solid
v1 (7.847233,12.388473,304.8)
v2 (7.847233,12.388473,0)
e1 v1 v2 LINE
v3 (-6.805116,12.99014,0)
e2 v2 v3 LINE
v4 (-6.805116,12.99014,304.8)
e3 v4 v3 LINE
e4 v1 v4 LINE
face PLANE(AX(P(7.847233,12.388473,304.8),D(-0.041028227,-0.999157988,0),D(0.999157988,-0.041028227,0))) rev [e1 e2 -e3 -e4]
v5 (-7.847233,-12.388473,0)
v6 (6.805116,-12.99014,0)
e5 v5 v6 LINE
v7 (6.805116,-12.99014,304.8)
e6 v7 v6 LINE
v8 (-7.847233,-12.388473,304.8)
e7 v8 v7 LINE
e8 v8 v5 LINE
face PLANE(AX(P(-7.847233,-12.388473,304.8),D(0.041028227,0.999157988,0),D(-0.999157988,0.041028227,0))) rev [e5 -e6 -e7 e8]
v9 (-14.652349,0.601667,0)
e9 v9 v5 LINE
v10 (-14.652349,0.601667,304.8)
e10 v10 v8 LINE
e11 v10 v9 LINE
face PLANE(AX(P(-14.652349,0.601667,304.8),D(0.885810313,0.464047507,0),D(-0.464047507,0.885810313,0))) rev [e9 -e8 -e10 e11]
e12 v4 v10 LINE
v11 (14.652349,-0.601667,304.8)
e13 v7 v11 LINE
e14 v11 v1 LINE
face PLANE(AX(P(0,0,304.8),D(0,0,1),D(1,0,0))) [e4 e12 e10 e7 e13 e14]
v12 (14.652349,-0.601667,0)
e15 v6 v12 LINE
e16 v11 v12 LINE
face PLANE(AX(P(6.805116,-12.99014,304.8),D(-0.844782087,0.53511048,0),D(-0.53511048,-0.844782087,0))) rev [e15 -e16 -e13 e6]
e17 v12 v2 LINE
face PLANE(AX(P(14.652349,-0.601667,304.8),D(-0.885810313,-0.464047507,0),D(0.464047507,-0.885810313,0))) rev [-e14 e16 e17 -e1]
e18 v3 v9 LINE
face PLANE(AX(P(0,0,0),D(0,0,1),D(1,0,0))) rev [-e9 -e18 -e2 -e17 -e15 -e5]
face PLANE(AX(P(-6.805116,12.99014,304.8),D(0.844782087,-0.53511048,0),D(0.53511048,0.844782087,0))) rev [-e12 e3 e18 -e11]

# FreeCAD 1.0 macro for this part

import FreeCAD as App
import Part
import Sketcher
Q = App.Units.Quantity


def add_polygon(sketch, points):
    """Adds a closed chain of lines whose ends are joined by coincident constraints."""
    first, n = sketch.GeometryCount, len(points)
    for a, b in zip(points, points[1:] + points[:1]):
        sketch.addGeometry(Part.LineSegment(App.Vector(*a, 0), App.Vector(*b, 0)), False)
    for i in range(n):
        sketch.addConstraint(Sketcher.Constraint("Coincident", first + i, 2, first + (i + 1) % n, 1))

doc = App.newDocument("Part")
body = doc.addObject("PartDesign::Body", "Body")

sketch1 = body.newObject("Sketcher::SketchObject", "Sketch")
sketch1.AttachmentSupport = (doc.getObject("XY_Plane"), [""])
sketch1.MapMode = "FlatFace"
add_polygon(sketch1, [(14.652349, -0.601667), (7.847233, 12.388473), (-6.805116, 12.99014), (-14.652349, 0.601667), (-7.847233, -12.388473), (6.805116, -12.99014)])
sketch1.addConstraint([
    Sketcher.Constraint("Symmetric", 0, 2, 3, 2, -1, 1),
    Sketcher.Constraint("Symmetric", 1, 2, 4, 2, -1, 1),
    Sketcher.Constraint("Symmetric", 2, 2, 5, 2, -1, 1),
    Sketcher.Constraint("Equal", 0, 1),
    Sketcher.Constraint("Equal", 1, 2),
    Sketcher.Constraint("DistanceY", -1, 1, 1, 2, Q("12.99014 mm")),
    Sketcher.Constraint("DistanceX", 2, 2, -1, 1, Q("14.652349 mm")),
    Sketcher.Constraint("DistanceX", 1, 2, 0, 2, Q("14.652349 mm")),
    Sketcher.Constraint("DistanceX", 2, 2, 0, 2, Q("22.499582 mm")),
])
pad1 = body.newObject("PartDesign::Pad", "Pad")
pad1.Profile = sketch1
pad1.Length = Q("12 in")

doc.recompute()
